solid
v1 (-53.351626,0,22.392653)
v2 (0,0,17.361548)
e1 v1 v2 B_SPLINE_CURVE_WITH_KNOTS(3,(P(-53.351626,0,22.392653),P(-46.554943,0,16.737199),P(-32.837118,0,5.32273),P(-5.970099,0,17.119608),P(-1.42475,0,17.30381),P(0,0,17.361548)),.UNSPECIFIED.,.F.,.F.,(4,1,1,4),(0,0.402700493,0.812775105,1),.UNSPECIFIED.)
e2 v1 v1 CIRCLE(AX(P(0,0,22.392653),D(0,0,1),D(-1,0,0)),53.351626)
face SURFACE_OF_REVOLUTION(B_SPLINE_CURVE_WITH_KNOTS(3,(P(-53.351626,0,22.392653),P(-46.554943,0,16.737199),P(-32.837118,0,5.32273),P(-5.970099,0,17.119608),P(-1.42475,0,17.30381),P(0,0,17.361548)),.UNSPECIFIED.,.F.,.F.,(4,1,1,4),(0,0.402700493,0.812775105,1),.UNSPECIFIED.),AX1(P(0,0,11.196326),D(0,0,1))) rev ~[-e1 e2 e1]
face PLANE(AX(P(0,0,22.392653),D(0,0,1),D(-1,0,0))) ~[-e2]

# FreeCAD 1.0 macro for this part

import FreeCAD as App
import Part
import Sketcher
from FreeCAD import Vector

doc = App.newDocument("Part")
body = doc.addObject("PartDesign::Body", "Body")

sketch1 = doc.addObject("Sketcher::SketchObject", "Sketch")
body.addObject(sketch1)
sketch1.AttachmentSupport = (doc.XZ_Plane, [""])
sketch1.MapMode = "FlatFace"
sketch1.addGeometry([
    Part.LineSegment(Vector(0, 22.392653, 0), Vector(-53.351626, 22.392653, 0)),
    Part.BSplineCurve([Vector(-53.351626, 22.392653, 0), Vector(-46.554943, 16.737199, 0), Vector(-32.837118, 5.32273, 0), Vector(-5.970099, 17.119608, 0), Vector(-1.42475, 17.30381, 0), Vector(0, 17.361548, 0)], [4, 1, 1, 4], [0, 0.402700493, 0.812775105, 1], False, 3, [1, 1, 1, 1, 1, 1], False),
    Part.LineSegment(Vector(0, 17.361548, 0), Vector(0, 22.392653, 0)),
], False)
sketch1.addConstraint([
    Sketcher.Constraint("Block", 1),
    Sketcher.Constraint("Coincident", 0, 2, 1, 1),
    Sketcher.Constraint("Coincident", 1, 2, 2, 1),
    Sketcher.Constraint("Coincident", 2, 2, 0, 1),
    Sketcher.Constraint("Horizontal", 0),
    Sketcher.Constraint("Vertical", 2),
])
revolution = doc.addObject("PartDesign::Revolution", "Revolution")
body.addObject(revolution)
revolution.Profile = sketch1
revolution.ReferenceAxis = (sketch1, ["V_Axis"])
revolution.Angle = 360

doc.recompute()
